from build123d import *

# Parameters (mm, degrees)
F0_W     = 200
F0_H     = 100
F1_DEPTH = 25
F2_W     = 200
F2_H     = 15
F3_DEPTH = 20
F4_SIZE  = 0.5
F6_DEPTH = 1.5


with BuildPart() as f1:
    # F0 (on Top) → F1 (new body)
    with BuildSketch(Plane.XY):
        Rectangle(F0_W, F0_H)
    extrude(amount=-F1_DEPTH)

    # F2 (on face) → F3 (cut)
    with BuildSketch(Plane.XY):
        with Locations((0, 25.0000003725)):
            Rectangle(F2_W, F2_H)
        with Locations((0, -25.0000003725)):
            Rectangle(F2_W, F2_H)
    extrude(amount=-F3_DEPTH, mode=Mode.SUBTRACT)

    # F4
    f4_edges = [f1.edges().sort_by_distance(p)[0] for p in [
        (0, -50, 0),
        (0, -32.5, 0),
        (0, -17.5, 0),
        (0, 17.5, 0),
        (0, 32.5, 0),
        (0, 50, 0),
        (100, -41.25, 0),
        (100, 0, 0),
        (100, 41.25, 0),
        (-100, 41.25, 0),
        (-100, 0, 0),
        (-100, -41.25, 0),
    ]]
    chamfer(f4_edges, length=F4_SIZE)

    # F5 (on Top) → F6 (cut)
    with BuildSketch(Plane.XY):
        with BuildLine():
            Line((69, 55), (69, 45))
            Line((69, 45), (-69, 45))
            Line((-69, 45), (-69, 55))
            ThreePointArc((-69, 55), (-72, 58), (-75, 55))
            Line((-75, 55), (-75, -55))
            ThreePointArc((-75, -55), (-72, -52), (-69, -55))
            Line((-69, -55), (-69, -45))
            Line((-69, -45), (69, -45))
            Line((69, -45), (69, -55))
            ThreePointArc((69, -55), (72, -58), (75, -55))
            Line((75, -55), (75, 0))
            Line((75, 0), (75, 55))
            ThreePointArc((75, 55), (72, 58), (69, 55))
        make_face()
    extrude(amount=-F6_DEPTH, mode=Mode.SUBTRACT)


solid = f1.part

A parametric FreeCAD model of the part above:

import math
import FreeCAD as App
import Part
import Sketcher

V = App.Vector


def edges_at(feature, points):
    """Names of the edges that pass closest to the given points."""
    edges = feature.Shape.Edges
    near = lambda p: min(range(len(edges)), key=lambda i: edges[i].distToShape(Part.Vertex(*p))[0])
    return sorted({f"Edge{near(p) + 1}" for p in points})

doc = App.newDocument("Part")
body = doc.addObject("PartDesign::Body", "Body")

sketch1 = body.newObject("Sketcher::SketchObject", "Sketch")
sketch1.AttachmentSupport = (doc.getObject("XY_Plane"), [""])
sketch1.MapMode = "FlatFace"
sketch1.addGeometry([
    Part.LineSegment(V(-100, 50, 0), V(-100, -50, 0)),
    Part.LineSegment(V(-100, -50, 0), V(100, -50, 0)),
    Part.LineSegment(V(100, -50, 0), V(100, 50, 0)),
    Part.LineSegment(V(100, 50, 0), V(-100, 50, 0)),
], False)
sketch1.addConstraint([
    Sketcher.Constraint("Coincident", 0, 2, 1, 1),
    Sketcher.Constraint("Coincident", 1, 2, 2, 1),
    Sketcher.Constraint("Coincident", 2, 2, 3, 1),
    Sketcher.Constraint("Coincident", 3, 2, 0, 1),
    Sketcher.Constraint("Vertical", 0),
    Sketcher.Constraint("Horizontal", 1),
    Sketcher.Constraint("Vertical", 2),
    Sketcher.Constraint("Horizontal", 3),
    Sketcher.Constraint("Symmetric", 0, 2, 2, 2, -1, 1),
    Sketcher.Constraint("DistanceX", 1, 1, 1, 2, 200.0),
    Sketcher.Constraint("DistanceY", 0, 2, 0, 1, 100.0),
])
pad1 = body.newObject("PartDesign::Pad", "Pad")
pad1.Profile = sketch1
pad1.Length = 25
pad1.Reversed = True

sketch2 = body.newObject("Sketcher::SketchObject", "Sketch001")
sketch2.AttachmentSupport = (doc.getObject("XY_Plane"), [""])
sketch2.MapMode = "FlatFace"
sketch2.addGeometry([
    Part.LineSegment(V(-100, 33, 0), V(-100, 18, 0)),
    Part.LineSegment(V(-100, 18, 0), V(100, 18, 0)),
    Part.LineSegment(V(100, 18, 0), V(100, 33, 0)),
    Part.LineSegment(V(100, 33, 0), V(-100, 33, 0)),
    Part.LineSegment(V(-100, -18, 0), V(-100, -33, 0)),
    Part.LineSegment(V(-100, -33, 0), V(100, -33, 0)),
    Part.LineSegment(V(100, -33, 0), V(100, -18, 0)),
    Part.LineSegment(V(100, -18, 0), V(-100, -18, 0)),
], False)
sketch2.addConstraint([
    Sketcher.Constraint("Coincident", 0, 2, 1, 1),
    Sketcher.Constraint("Coincident", 1, 2, 2, 1),
    Sketcher.Constraint("Coincident", 2, 2, 3, 1),
    Sketcher.Constraint("Coincident", 3, 2, 0, 1),
    Sketcher.Constraint("Coincident", 4, 2, 5, 1),
    Sketcher.Constraint("Coincident", 5, 2, 6, 1),
    Sketcher.Constraint("Coincident", 6, 2, 7, 1),
    Sketcher.Constraint("Coincident", 7, 2, 4, 1),
    Sketcher.Constraint("Vertical", 0),
    Sketcher.Constraint("Horizontal", 1),
    Sketcher.Constraint("Vertical", 2),
    Sketcher.Constraint("Horizontal", 3),
    Sketcher.Constraint("Vertical", 4),
    Sketcher.Constraint("Horizontal", 5),
    Sketcher.Constraint("Vertical", 6),
    Sketcher.Constraint("Horizontal", 7),
    Sketcher.Constraint("Symmetric", 2, 2, 4, 2, -1, 1),
    Sketcher.Constraint("Symmetric", 0, 2, 6, 2, -1, 1),
    Sketcher.Constraint("Vertical", 3, 2, 4, 2),
    Sketcher.Constraint("DistanceX", 1, 1, 1, 2, 200.0),
    Sketcher.Constraint("DistanceY", 0, 2, 0, 1, 15.0),
    Sketcher.Constraint("DistanceY", 4, 2, 0, 2, 50.000001),
])
pocket1 = body.newObject("PartDesign::Pocket", "Pocket")
pocket1.Profile = sketch2
pocket1.Length = 20
doc.recompute()

chamfer = body.newObject("PartDesign::Chamfer", "Chamfer")
chamfer.Base = (pocket1, edges_at(pocket1, [
    (0, -50, 0),
    (0, -32.5, 0),
    (0, -17.5, 0),
    (0, 17.5, 0),
    (0, 32.5, 0),
    (0, 50, 0),
    (100, -41.25, 0),
    (100, 0, 0),
    (100, 41.25, 0),
    (-100, 41.25, 0),
    (-100, 0, 0),
    (-100, -41.25, 0),
]))
chamfer.Size = 0.5

sketch3 = body.newObject("Sketcher::SketchObject", "Sketch002")
sketch3.AttachmentSupport = (doc.getObject("XY_Plane"), [""])
sketch3.MapMode = "FlatFace"
sketch3.addGeometry([
    Part.LineSegment(V(69, 55, 0), V(69, 45, 0)),
    Part.LineSegment(V(69, 45, 0), V(-69, 45, 0)),
    Part.LineSegment(V(-69, 45, 0), V(-69, 55, 0)),
    Part.ArcOfCircle(Part.Circle(V(-72, 55, 0), V(0, 0, 1), 3), math.radians(0), math.radians(180)),
    Part.LineSegment(V(-75, 55, 0), V(-75, -55, 0)),
    Part.ArcOfCircle(Part.Circle(V(-72, -55, 0), V(0, 0, 1), 3), math.radians(0), math.radians(180)),
    Part.LineSegment(V(-69, -55, 0), V(-69, -45, 0)),
    Part.LineSegment(V(-69, -45, 0), V(69, -45, 0)),
    Part.LineSegment(V(69, -45, 0), V(69, -55, 0)),
    Part.ArcOfCircle(Part.Circle(V(72, -55, 0), V(0, 0, 1), 3), math.radians(180), math.radians(360)),
    Part.LineSegment(V(75, -55, 0), V(75, 55, 0)),
    Part.ArcOfCircle(Part.Circle(V(72, 55, 0), V(0, 0, 1), 3), math.radians(0), math.radians(180)),
], False)
sketch3.addConstraint([
    Sketcher.Constraint("Coincident", 0, 2, 1, 1),
    Sketcher.Constraint("Coincident", 1, 2, 2, 1),
    Sketcher.Constraint("Tangent", 2, 2, 3, 1),
    Sketcher.Constraint("Tangent", 3, 2, 4, 1),
    Sketcher.Constraint("Tangent", 4, 2, 5, 2),
    Sketcher.Constraint("Tangent", 5, 1, 6, 1),
    Sketcher.Constraint("Coincident", 6, 2, 7, 1),
    Sketcher.Constraint("Coincident", 7, 2, 8, 1),
    Sketcher.Constraint("Tangent", 8, 2, 9, 1),
    Sketcher.Constraint("Tangent", 9, 2, 10, 1),
    Sketcher.Constraint("Tangent", 10, 2, 11, 1),
    Sketcher.Constraint("Tangent", 11, 2, 0, 1),
    Sketcher.Constraint("Vertical", 0),
    Sketcher.Constraint("Horizontal", 1),
    Sketcher.Constraint("Vertical", 2),
    Sketcher.Constraint("Vertical", 4),
    Sketcher.Constraint("Vertical", 6),
    Sketcher.Constraint("Horizontal", 7),
    Sketcher.Constraint("Vertical", 8),
    Sketcher.Constraint("Vertical", 10),
    Sketcher.Constraint("Equal", 3, 5),
    Sketcher.Constraint("Equal", 5, 9),
    Sketcher.Constraint("Equal", 9, 11),
    Sketcher.Constraint("Symmetric", 3, 3, 9, 3, -1, 1),
    Sketcher.Constraint("Horizontal", 5, 3, 9, 3),
    Sketcher.Constraint("Horizontal", 3, 3, 11, 3),
    Sketcher.Constraint("Equal", 2, 6),
    Sketcher.Constraint("Radius", 3, 3.0),
    Sketcher.Constraint("DistanceX", 1, 2, 1, 1, 138.0),
    Sketcher.Constraint("DistanceY", 0, 2, 0, 1, 10.0),
    Sketcher.Constraint("DistanceY", 4, 2, 4, 1, 110.0),
])
pocket2 = body.newObject("PartDesign::Pocket", "Pocket001")
pocket2.Profile = sketch3
pocket2.Length = 1.5

doc.recompute()
